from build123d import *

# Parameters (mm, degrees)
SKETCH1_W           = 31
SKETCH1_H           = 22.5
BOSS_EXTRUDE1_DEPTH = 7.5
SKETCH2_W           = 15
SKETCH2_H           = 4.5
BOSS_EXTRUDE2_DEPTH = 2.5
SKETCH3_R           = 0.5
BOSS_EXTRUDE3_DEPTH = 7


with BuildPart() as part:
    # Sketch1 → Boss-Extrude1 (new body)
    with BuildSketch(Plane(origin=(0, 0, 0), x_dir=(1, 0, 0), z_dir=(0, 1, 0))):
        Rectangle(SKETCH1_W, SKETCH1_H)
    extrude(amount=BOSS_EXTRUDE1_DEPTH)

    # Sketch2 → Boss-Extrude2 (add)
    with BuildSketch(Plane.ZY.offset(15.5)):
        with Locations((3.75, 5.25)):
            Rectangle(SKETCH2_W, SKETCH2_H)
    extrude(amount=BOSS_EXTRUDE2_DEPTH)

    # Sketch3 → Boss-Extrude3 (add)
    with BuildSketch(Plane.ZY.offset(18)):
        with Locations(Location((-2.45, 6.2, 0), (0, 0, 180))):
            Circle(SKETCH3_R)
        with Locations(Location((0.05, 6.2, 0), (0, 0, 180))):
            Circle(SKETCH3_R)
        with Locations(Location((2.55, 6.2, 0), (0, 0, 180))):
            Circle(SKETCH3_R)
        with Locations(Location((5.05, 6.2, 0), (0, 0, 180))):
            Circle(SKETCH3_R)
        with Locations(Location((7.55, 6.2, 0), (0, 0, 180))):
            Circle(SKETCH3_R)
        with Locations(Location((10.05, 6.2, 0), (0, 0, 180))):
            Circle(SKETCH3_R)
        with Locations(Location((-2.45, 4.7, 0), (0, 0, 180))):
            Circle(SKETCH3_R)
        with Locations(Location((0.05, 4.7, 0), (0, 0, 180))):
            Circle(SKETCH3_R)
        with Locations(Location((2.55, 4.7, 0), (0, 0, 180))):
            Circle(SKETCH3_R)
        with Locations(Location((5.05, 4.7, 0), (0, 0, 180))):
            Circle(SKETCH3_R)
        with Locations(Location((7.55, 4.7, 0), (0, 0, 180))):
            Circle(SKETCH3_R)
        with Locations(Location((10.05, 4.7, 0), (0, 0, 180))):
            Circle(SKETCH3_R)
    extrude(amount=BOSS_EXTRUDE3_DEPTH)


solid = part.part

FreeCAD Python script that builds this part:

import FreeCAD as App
import Part
import Sketcher


def add_polygon(sketch, points):
    """Adds a closed chain of lines whose ends are joined by coincident constraints."""
    first, n = sketch.GeometryCount, len(points)
    for a, b in zip(points, points[1:] + points[:1]):
        sketch.addGeometry(Part.LineSegment(App.Vector(*a, 0), App.Vector(*b, 0)), False)
    for i in range(n):
        sketch.addConstraint(Sketcher.Constraint("Coincident", first + i, 2, first + (i + 1) % n, 1))

doc = App.newDocument("Part")
body = doc.addObject("PartDesign::Body", "Body")

# Sketch on XZ plane
sketch1 = body.newObject("Sketcher::SketchObject", "Sketch")
sketch1.AttachmentSupport = (doc.getObject("XZ_Plane"), [""])
sketch1.MapMode = "FlatFace"
add_polygon(sketch1, [(-15.5, -11.25), (-15.5, 11.25), (15.5, 11.25), (15.5, -11.25)])  # lines 0-3
sketch1.addConstraint([
    Sketcher.Constraint("Vertical", 0),
    Sketcher.Constraint("Horizontal", 1),
    Sketcher.Constraint("Vertical", 2),
    Sketcher.Constraint("Horizontal", 3),
    Sketcher.Constraint("Symmetric", 0, 2, 2, 2, -1, 1),
    Sketcher.Constraint("DistanceX", 1, 1, 1, 2, 31.0),
    Sketcher.Constraint("DistanceY", 0, 1, 0, 2, 22.5),
])
pad1 = body.newObject("PartDesign::Pad", "Pad")
pad1.Profile = sketch1
pad1.Length = 7.5
pad1.Reversed = True

# Sketch on YZ plane
sketch2 = body.newObject("Sketcher::SketchObject", "Sketch001")
sketch2.AttachmentSupport = (doc.getObject("YZ_Plane"), [""])
sketch2.MapMode = "FlatFace"
sketch2.AttachmentOffset = App.Placement(App.Vector(0, 0, -15.5), App.Rotation())
add_polygon(sketch2, [(7.5, -3.75), (3, -3.75), (3, 11.25), (7.5, 11.25)])  # lines 0-3
sketch2.addConstraint([
    Sketcher.Constraint("Horizontal", 0),
    Sketcher.Constraint("Vertical", 1),
    Sketcher.Constraint("Horizontal", 2),
    Sketcher.Constraint("Vertical", 3),
    Sketcher.Constraint("DistanceY", 1, 1, 1, 2, 15.0),
    Sketcher.Constraint("DistanceX", 0, 2, 0, 1, 4.5),
    Sketcher.Constraint("DistanceX", -1, 1, 0, 2, 3.0),
    Sketcher.Constraint("DistanceY", 0, 2, -1, 1, 3.75),
])
pad2 = body.newObject("PartDesign::Pad", "Pad001")
pad2.Profile = sketch2
pad2.Length = 2.5
pad2.Reversed = True

# Sketch on YZ plane
sketch3 = body.newObject("Sketcher::SketchObject", "Sketch002")
sketch3.AttachmentSupport = (doc.getObject("YZ_Plane"), [""])
sketch3.MapMode = "FlatFace"
sketch3.AttachmentOffset = App.Placement(App.Vector(0, 0, -18), App.Rotation())
sketch3.addGeometry([
    Part.Circle(App.Vector(6.2, -2.45, 0), App.Vector(0, 0, 1), 0.5),  # 0
    Part.Circle(App.Vector(6.2, 0.05, 0), App.Vector(0, 0, 1), 0.5),  # 1
    Part.Circle(App.Vector(6.2, 2.55, 0), App.Vector(0, 0, 1), 0.5),  # 2
    Part.Circle(App.Vector(6.2, 5.05, 0), App.Vector(0, 0, 1), 0.5),  # 3
    Part.Circle(App.Vector(6.2, 7.55, 0), App.Vector(0, 0, 1), 0.5),  # 4
    Part.Circle(App.Vector(6.2, 10.05, 0), App.Vector(0, 0, 1), 0.5),  # 5
    Part.Circle(App.Vector(4.7, -2.45, 0), App.Vector(0, 0, 1), 0.5),  # 6
    Part.Circle(App.Vector(4.7, 0.05, 0), App.Vector(0, 0, 1), 0.5),  # 7
    Part.Circle(App.Vector(4.7, 2.55, 0), App.Vector(0, 0, 1), 0.5),  # 8
    Part.Circle(App.Vector(4.7, 5.05, 0), App.Vector(0, 0, 1), 0.5),  # 9
    Part.Circle(App.Vector(4.7, 7.55, 0), App.Vector(0, 0, 1), 0.5),  # 10
    Part.Circle(App.Vector(4.7, 10.05, 0), App.Vector(0, 0, 1), 0.5),  # 11
], False)
sketch3.addConstraint([
    Sketcher.Constraint("Equal", 0, 1),
    Sketcher.Constraint("Equal", 1, 2),
    Sketcher.Constraint("Equal", 2, 3),
    Sketcher.Constraint("Equal", 3, 4),
    Sketcher.Constraint("Equal", 4, 5),
    Sketcher.Constraint("Equal", 5, 6),
    Sketcher.Constraint("Equal", 6, 7),
    Sketcher.Constraint("Equal", 7, 8),
    Sketcher.Constraint("Equal", 8, 9),
    Sketcher.Constraint("Equal", 9, 10),
    Sketcher.Constraint("Equal", 10, 11),
    Sketcher.Constraint("Horizontal", 0, 3, 6, 3),
    Sketcher.Constraint("Horizontal", 1, 3, 7, 3),
    Sketcher.Constraint("Horizontal", 2, 3, 8, 3),
    Sketcher.Constraint("Horizontal", 3, 3, 9, 3),
    Sketcher.Constraint("Horizontal", 4, 3, 10, 3),
    Sketcher.Constraint("Horizontal", 5, 3, 11, 3),
    Sketcher.Constraint("Vertical", 0, 3, 1, 3),
    Sketcher.Constraint("Vertical", 1, 3, 2, 3),
    Sketcher.Constraint("Vertical", 2, 3, 3, 3),
    Sketcher.Constraint("Vertical", 3, 3, 4, 3),
    Sketcher.Constraint("Vertical", 4, 3, 5, 3),
    Sketcher.Constraint("Vertical", 6, 3, 7, 3),
    Sketcher.Constraint("Vertical", 7, 3, 8, 3),
    Sketcher.Constraint("Vertical", 8, 3, 9, 3),
    Sketcher.Constraint("Vertical", 9, 3, 10, 3),
    Sketcher.Constraint("Vertical", 10, 3, 11, 3),
    Sketcher.Constraint("Diameter", 0, 1.0),
    Sketcher.Constraint("DistanceY", 0, 3, 2, 3, 5.0),
    Sketcher.Constraint("DistanceY", 1, 3, 3, 3, 5.0),
    Sketcher.Constraint("DistanceY", 2, 3, 4, 3, 5.0),
    Sketcher.Constraint("DistanceY", 3, 3, 5, 3, 5.0),
    Sketcher.Constraint("DistanceX", -1, 1, 0, 3, 6.2),
    Sketcher.Constraint("DistanceX", -1, 1, 6, 3, 4.7),
    Sketcher.Constraint("DistanceY", 0, 3, 1, 3, 2.5),
    Sketcher.Constraint("DistanceY", 0, 3, -1, 1, 2.45),
])
pad3 = body.newObject("PartDesign::Pad", "Pad002")
pad3.Profile = sketch3
pad3.Length = 7
pad3.Reversed = True

doc.recompute()
